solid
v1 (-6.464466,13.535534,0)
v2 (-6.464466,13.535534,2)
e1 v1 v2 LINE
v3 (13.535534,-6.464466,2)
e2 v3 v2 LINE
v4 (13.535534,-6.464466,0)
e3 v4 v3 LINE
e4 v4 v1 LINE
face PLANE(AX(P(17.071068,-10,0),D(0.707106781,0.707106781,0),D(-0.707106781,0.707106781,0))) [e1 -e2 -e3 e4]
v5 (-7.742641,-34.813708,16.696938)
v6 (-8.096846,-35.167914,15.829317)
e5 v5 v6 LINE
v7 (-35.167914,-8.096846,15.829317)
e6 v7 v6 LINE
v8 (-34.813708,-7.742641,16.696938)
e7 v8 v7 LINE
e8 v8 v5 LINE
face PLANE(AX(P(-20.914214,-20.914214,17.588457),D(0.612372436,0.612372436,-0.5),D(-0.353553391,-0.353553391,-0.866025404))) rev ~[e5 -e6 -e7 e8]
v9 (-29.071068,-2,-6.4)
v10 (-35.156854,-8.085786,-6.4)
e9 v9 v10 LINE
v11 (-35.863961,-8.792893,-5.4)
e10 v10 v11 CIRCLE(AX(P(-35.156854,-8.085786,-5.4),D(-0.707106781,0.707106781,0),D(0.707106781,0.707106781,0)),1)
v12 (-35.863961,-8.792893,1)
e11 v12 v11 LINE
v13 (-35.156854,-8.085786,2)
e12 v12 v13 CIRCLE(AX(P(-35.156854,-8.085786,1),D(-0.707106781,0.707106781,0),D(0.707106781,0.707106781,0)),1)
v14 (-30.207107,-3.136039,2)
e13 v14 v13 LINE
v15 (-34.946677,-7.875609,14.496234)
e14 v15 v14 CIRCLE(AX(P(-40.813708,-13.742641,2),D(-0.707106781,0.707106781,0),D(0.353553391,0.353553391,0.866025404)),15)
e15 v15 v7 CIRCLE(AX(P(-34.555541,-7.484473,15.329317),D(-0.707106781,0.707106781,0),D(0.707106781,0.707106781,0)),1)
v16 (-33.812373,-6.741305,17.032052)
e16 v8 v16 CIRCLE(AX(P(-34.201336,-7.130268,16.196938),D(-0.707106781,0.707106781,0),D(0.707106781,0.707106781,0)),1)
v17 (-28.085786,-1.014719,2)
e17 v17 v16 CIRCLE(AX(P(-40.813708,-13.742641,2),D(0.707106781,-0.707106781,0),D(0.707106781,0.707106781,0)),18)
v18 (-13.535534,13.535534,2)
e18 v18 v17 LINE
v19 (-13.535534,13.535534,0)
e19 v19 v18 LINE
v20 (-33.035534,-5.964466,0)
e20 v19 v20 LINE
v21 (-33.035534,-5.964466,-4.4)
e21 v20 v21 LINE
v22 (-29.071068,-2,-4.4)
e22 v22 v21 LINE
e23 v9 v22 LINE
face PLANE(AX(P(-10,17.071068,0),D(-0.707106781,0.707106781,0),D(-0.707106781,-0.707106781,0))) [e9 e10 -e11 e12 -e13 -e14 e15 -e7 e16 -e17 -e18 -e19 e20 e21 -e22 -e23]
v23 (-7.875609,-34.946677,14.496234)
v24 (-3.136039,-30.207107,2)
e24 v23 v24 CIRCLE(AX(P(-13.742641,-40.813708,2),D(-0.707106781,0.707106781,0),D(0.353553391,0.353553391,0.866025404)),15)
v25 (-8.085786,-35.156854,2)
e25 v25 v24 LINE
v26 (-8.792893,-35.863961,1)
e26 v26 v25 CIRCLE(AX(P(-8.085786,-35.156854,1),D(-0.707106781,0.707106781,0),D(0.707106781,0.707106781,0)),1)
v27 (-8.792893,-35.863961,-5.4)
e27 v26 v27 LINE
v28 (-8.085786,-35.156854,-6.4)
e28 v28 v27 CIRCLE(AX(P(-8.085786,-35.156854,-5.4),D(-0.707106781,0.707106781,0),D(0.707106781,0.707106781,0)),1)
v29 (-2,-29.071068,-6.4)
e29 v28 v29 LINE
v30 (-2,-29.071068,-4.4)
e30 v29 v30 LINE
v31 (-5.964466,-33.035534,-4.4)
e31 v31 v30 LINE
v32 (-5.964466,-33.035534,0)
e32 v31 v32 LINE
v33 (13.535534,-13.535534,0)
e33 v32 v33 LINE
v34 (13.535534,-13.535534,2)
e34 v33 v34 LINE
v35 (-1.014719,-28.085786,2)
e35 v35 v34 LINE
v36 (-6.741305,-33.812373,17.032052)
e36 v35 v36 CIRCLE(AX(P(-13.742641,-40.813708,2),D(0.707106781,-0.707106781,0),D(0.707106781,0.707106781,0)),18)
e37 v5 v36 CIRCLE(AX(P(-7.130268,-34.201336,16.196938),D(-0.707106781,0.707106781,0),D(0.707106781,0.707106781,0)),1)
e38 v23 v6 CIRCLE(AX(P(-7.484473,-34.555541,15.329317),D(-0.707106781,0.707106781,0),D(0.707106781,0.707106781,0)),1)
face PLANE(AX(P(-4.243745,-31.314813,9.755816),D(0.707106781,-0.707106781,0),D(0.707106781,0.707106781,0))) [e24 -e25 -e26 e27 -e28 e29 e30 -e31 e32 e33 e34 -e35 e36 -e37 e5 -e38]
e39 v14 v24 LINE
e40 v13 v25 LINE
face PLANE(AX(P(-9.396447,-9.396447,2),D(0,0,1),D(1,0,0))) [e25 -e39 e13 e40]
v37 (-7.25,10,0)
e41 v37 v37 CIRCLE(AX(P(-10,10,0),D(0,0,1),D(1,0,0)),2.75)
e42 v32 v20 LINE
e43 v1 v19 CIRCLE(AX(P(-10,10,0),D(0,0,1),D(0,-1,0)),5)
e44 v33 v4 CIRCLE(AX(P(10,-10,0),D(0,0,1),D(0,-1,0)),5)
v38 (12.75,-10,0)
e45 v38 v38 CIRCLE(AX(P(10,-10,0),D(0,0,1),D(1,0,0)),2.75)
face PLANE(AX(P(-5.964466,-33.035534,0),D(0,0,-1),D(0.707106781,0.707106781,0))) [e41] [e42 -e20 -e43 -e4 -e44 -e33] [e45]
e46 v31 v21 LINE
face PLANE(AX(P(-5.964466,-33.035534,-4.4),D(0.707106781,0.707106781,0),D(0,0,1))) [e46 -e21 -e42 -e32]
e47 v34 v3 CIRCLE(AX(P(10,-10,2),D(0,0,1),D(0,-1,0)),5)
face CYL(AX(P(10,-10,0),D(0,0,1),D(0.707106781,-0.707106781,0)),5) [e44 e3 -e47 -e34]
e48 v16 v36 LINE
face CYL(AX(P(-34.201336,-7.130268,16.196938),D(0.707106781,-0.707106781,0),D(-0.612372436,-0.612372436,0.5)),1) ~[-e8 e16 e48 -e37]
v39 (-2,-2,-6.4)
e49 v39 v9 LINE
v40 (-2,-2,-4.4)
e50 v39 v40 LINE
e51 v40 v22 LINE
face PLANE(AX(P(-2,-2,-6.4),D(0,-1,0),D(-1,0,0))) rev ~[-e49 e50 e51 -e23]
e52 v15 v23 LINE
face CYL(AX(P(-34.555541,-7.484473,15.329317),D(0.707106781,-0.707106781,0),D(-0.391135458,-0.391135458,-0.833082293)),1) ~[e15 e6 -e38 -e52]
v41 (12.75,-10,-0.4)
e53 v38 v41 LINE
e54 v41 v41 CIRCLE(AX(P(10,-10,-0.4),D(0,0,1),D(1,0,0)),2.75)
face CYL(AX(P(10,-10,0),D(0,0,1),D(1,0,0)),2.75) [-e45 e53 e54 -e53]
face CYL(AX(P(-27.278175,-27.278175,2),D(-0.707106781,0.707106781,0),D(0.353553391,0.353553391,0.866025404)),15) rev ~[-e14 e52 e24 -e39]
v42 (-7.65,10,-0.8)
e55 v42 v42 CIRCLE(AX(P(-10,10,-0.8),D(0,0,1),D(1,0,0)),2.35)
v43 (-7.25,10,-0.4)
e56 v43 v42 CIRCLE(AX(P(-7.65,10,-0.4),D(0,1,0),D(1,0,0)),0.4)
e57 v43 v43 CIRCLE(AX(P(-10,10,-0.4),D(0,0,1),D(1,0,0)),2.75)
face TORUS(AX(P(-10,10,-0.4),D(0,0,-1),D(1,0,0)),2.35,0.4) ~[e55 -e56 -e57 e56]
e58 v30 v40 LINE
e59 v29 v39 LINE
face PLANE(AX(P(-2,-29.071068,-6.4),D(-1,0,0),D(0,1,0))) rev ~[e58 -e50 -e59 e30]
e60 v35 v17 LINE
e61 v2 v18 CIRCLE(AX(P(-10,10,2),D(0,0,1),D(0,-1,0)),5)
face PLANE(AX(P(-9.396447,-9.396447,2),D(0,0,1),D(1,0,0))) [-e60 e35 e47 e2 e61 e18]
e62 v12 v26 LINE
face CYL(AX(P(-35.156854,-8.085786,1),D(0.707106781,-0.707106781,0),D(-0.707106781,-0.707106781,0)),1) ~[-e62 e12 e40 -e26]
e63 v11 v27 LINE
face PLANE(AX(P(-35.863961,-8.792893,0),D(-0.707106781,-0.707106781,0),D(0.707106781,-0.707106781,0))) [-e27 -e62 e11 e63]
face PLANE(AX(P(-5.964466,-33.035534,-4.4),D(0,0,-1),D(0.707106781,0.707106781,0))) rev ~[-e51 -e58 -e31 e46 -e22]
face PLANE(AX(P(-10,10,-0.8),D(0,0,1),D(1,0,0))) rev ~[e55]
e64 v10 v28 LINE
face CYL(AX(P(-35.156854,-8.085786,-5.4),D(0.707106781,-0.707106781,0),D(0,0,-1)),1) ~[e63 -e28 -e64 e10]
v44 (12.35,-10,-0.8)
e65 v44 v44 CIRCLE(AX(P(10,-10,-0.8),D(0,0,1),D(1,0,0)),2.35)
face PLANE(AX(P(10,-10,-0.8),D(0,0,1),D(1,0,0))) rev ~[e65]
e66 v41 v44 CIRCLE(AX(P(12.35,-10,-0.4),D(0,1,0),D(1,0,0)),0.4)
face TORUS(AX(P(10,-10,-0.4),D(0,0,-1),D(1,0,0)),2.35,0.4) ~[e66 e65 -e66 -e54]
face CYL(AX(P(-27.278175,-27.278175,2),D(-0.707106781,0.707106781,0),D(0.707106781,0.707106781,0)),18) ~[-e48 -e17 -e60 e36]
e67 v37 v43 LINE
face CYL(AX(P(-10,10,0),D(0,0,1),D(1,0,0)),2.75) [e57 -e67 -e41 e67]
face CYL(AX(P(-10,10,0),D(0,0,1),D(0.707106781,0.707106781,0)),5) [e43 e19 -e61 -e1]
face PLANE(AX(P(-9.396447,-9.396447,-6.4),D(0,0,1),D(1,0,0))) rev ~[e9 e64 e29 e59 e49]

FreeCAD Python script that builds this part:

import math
import FreeCAD as App
import Part
import Sketcher
Q = App.Units.Quantity


def edges_at(feature, points):
    """Names of the edges that pass closest to the given points."""
    edges = feature.Shape.Edges
    near = lambda p: min(range(len(edges)), key=lambda i: edges[i].distToShape(Part.Vertex(*p))[0])
    return sorted({f"Edge{near(p) + 1}" for p in points})

doc = App.newDocument("Part")
body = doc.addObject("PartDesign::Body", "Body")

# Sketch on XY plane
sketch1 = doc.addObject("Sketcher::SketchObject", "Sketch")
body.addObject(sketch1)
sketch1.AttachmentSupport = (doc.XY_Plane, [""])
sketch1.MapMode = "FlatFace"
sketch1.addGeometry([
    Part.LineSegment(App.Vector(-9, -36, 0), App.Vector(17, -10, 0)),
    Part.LineSegment(App.Vector(17, -10, 0), App.Vector(-10, 17, 0)),
    Part.LineSegment(App.Vector(-10, 17, 0), App.Vector(-36, -9, 0)),
    Part.LineSegment(App.Vector(-36, -9, 0), App.Vector(-9, -36, 0)),
], False)
sketch1.addConstraint([
    Sketcher.Constraint("Coincident", 0, 2, 1, 1),
    Sketcher.Constraint("Coincident", 1, 2, 2, 1),
    Sketcher.Constraint("Coincident", 2, 2, 3, 1),
    Sketcher.Constraint("Coincident", 3, 2, 0, 1),
    Sketcher.Constraint("Perpendicular", 0, 1),
    Sketcher.Constraint("Perpendicular", 1, 2),
    Sketcher.Constraint("Perpendicular", 2, 3),
    Sketcher.Constraint("Angle", 0, Q("45 deg")),
    Sketcher.Constraint("DistanceY", 0, 2, -1, 1, 10.0),
    Sketcher.Constraint("DistanceX", 1, 2, -1, 1, 10.0),
    Sketcher.Constraint("Distance", 1, 38.284271),
    Sketcher.Constraint("DistanceX", 2, 2, -1, 1, 35.863961),
])
pad1 = doc.addObject("PartDesign::Pad", "Pad")
body.addObject(pad1)
pad1.Profile = sketch1
pad1.Type = "TwoLengths"
pad1.Length = 2
pad1.Length2 = 6.4

# Sketch on an angled plane
sketch2 = doc.addObject("Sketcher::SketchObject", "Sketch001")
body.addObject(sketch2)
sketch2.Placement = App.Placement(App.Vector(13.535534, -13.535534, 0), App.Rotation(App.Vector(0.707106781, 0.707106781, 0), App.Vector(0, 0, 0.999999999), App.Vector(0.707106781, -0.707106781, 0), "ZXY"))
sketch2.addGeometry([
    Part.LineSegment(App.Vector(-27.6, 0, 0), App.Vector(-27.6, -4.4, 0)),
    Part.LineSegment(App.Vector(-27.6, -4.4, 0), App.Vector(5, -4.4, 0)),
    Part.LineSegment(App.Vector(5, -4.4, 0), App.Vector(5, 0, 0)),
    Part.LineSegment(App.Vector(5, 0, 0), App.Vector(-27.6, 0, 0)),
], False)
sketch2.addConstraint([
    Sketcher.Constraint("Coincident", 0, 2, 1, 1),
    Sketcher.Constraint("Coincident", 1, 2, 2, 1),
    Sketcher.Constraint("Coincident", 2, 2, 3, 1),
    Sketcher.Constraint("Coincident", 3, 2, 0, 1),
    Sketcher.Constraint("Vertical", 0),
    Sketcher.Constraint("Horizontal", 1),
    Sketcher.Constraint("Vertical", 2),
    Sketcher.Constraint("Horizontal", 3),
    Sketcher.Constraint("PointOnObject", 2, 2, -1),
    Sketcher.Constraint("DistanceY", 0, 2, 0, 1, 4.4),
    Sketcher.Constraint("DistanceX", -1, 1, 1, 2, 5.0),
    Sketcher.Constraint("DistanceX", 1, 1, 1, 2, 32.577164),
])
pocket1 = doc.addObject("PartDesign::Pocket", "Pocket")
body.addObject(pocket1)
pocket1.Profile = sketch2
pocket1.Type = "ThroughAll"

# Sketch on an angled plane
sketch3 = doc.addObject("Sketcher::SketchObject", "Sketch002")
body.addObject(sketch3)
sketch3.Placement = App.Placement(App.Vector(0, 0, 0), App.Rotation(App.Vector(0.707106781, 0.707106781, 0), App.Vector(0, 0, 0.999999999), App.Vector(0.707106781, -0.707106781, 0), "ZXY"))
sketch3.addGeometry([
    Part.LineSegment(App.Vector(-23.6, 2, 0), App.Vector(-20.6, 2, 0)),
    Part.ArcOfCircle(Part.Circle(App.Vector(-38.6, 2, 0), App.Vector(0, 0, 1), 18), math.radians(0), math.radians(60)),
    Part.LineSegment(App.Vector(-29.6, 17.6, 0), App.Vector(-31.1, 15, 0)),
    Part.ArcOfCircle(Part.Circle(App.Vector(-38.6, 2, 0), App.Vector(0, 0, 1), 15), math.radians(0), math.radians(60)),
], False)
sketch3.addConstraint([
    Sketcher.Constraint("Coincident", 0, 2, 1, 1),
    Sketcher.Constraint("Coincident", 1, 2, 2, 1),
    Sketcher.Constraint("Coincident", 2, 2, 3, 2),
    Sketcher.Constraint("Coincident", 3, 1, 0, 1),
    Sketcher.Constraint("Horizontal", 0),
    Sketcher.Constraint("Coincident", 3, 3, 1, 3),
    Sketcher.Constraint("Horizontal", 3, 3, 0, 2),
    Sketcher.Constraint("Radius", 1, 18.0),
    Sketcher.Constraint("Radius", 3, 15.0),
    Sketcher.Constraint("Angle", 2, Q("-120 deg")),
    Sketcher.Constraint("DistanceY", -1, 1, 1, 3, 2.0),
    Sketcher.Constraint("DistanceX", 1, 2, 0, 2, 9.0),
    Sketcher.Constraint("DistanceX", 1, 3, -1, 1, 38.577164),
])
pad2 = doc.addObject("PartDesign::Pad", "Pad001")
body.addObject(pad2)
pad2.Profile = sketch3
pad2.Type = "TwoLengths"
pad2.Length = 19.142136
pad2.Length2 = 19.142136
pad2.Reversed = True

# Sketch on XY plane
sketch4 = doc.addObject("Sketcher::SketchObject", "Sketch003")
body.addObject(sketch4)
sketch4.AttachmentSupport = (doc.XY_Plane, [""])
sketch4.MapMode = "FlatFace"
sketch4.AttachmentOffset = App.Placement(App.Vector(0, 0, -6.4), App.Rotation())
sketch4.addGeometry([
    Part.LineSegment(App.Vector(17, -10, 0), App.Vector(-2, -29, 0)),  # 0
    Part.LineSegment(App.Vector(-2, -29, 0), App.Vector(-2, -2, 0)),  # 1
    Part.LineSegment(App.Vector(-2, -2, 0), App.Vector(-29, -2, 0)),  # 2
    Part.LineSegment(App.Vector(-29, -2, 0), App.Vector(-10, 17, 0)),  # 3
    Part.LineSegment(App.Vector(-10, 17, 0), App.Vector(17, -10, 0)),  # 4
], False)
sketch4.addConstraint([
    Sketcher.Constraint("Coincident", 0, 2, 1, 1),
    Sketcher.Constraint("Coincident", 1, 2, 2, 1),
    Sketcher.Constraint("Coincident", 2, 2, 3, 1),
    Sketcher.Constraint("Coincident", 3, 2, 4, 1),
    Sketcher.Constraint("Coincident", 4, 2, 0, 1),
    Sketcher.Constraint("Vertical", 1),
    Sketcher.Constraint("Horizontal", 2),
    Sketcher.Constraint("Parallel", 0, 3),
    Sketcher.Constraint("Perpendicular", 3, 4),
    Sketcher.Constraint("Equal", 2, 1),
    Sketcher.Constraint("Equal", 0, 3),
    Sketcher.Constraint("DistanceX", 0, 2, -1, 1, 2.0),
    Sketcher.Constraint("DistanceY", 1, 2, -1, 1, 2.0),
    Sketcher.Constraint("DistanceX", 3, 2, -1, 1, 10.0),
    Sketcher.Constraint("Distance", 4, 38.284271),
])
pocket2 = doc.addObject("PartDesign::Pocket", "Pocket001")
body.addObject(pocket2)
pocket2.Profile = sketch4
pocket2.Length = 2
pocket2.Reversed = True

# Sketch on XY plane
sketch5 = doc.addObject("Sketcher::SketchObject", "Sketch004")
body.addObject(sketch5)
sketch5.AttachmentSupport = (doc.XY_Plane, [""])
sketch5.MapMode = "FlatFace"
sketch5.addGeometry([
    Part.Circle(App.Vector(10, -10, 0), App.Vector(0, 0, 1), 2.8),
    Part.Circle(App.Vector(-10, 10, 0), App.Vector(0, 0, 1), 2.8),
], False)
sketch5.addConstraint([
    Sketcher.Constraint("Equal", 0, 1),
    Sketcher.Constraint("Symmetric", 0, 3, 1, 3, -1, 1),
    Sketcher.Constraint("Diameter", 0, 5.5),
    Sketcher.Constraint("DistanceX", -1, 1, 0, 3, 10.0),
    Sketcher.Constraint("DistanceY", 0, 3, -1, 1, 10.0),
])
pad3 = doc.addObject("PartDesign::Pad", "Pad002")
body.addObject(pad3)
pad3.Profile = sketch5
pad3.Length = 0.8
pad3.Reversed = True
doc.recompute()

fillet = doc.addObject("PartDesign::Fillet", "Fillet")
body.addObject(fillet)
fillet.Base = (pad3, edges_at(pad3, [(7.25, -10, -0.8), (-12.75, 10, -0.8)]))
fillet.Radius = 0.4
doc.recompute()

fillet2 = doc.addObject("PartDesign::Fillet", "Fillet001")
body.addObject(fillet2)
fillet2.Base = (fillet, edges_at(fillet, [
    (-21.975, -21.975, 14.99),
    (-20.914, -20.914, 17.588),
    (-22.328, -22.328, 2),
    (-22.328, -22.328, -6.4),
]))
fillet2.Radius = 1
doc.recompute()

fillet3 = doc.addObject("PartDesign::Fillet", "Fillet002")
body.addObject(fillet3)
fillet3.Base = (fillet2, edges_at(fillet2, [(17.071, -10, 1), (-10, 17.071, 1)]))
fillet3.Radius = 5

doc.recompute()
